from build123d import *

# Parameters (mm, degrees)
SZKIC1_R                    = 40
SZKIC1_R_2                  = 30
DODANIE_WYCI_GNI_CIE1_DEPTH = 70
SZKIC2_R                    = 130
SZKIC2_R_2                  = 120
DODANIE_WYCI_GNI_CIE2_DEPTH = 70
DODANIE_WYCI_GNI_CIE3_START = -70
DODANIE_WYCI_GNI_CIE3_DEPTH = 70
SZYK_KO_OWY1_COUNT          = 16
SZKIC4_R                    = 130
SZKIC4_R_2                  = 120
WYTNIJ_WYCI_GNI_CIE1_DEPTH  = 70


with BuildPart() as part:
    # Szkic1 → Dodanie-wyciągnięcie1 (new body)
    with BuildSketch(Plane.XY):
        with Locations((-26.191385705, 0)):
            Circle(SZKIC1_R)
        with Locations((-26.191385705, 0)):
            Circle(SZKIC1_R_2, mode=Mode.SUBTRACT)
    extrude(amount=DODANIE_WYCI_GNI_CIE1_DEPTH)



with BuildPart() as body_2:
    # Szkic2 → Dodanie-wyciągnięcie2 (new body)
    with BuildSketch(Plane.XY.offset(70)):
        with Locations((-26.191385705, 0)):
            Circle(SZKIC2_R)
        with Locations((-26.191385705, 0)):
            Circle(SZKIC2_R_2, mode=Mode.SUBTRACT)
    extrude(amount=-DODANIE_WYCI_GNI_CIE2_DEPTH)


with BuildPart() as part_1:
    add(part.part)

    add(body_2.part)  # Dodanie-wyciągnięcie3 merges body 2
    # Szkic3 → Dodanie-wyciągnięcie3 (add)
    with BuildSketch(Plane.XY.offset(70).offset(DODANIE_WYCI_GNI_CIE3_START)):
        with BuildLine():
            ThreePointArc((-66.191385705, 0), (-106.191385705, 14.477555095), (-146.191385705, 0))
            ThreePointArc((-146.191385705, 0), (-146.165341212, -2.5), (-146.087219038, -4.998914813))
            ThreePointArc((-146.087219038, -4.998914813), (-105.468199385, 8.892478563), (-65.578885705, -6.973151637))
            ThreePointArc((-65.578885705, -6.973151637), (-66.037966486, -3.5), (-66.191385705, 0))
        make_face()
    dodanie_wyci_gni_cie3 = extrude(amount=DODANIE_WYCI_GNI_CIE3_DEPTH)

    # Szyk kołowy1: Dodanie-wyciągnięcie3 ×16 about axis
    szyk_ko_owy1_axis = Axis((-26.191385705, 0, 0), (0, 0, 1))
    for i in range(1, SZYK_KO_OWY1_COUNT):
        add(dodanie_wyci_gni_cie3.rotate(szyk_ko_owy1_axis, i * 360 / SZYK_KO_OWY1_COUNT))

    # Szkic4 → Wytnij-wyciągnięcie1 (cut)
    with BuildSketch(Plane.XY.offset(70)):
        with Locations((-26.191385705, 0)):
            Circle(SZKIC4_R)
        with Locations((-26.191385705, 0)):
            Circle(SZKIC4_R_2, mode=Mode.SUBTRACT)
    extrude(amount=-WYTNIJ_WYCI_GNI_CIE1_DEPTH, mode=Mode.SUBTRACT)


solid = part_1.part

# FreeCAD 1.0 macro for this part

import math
import FreeCAD as App
import Part
import Sketcher
from FreeCAD import Vector
Q = App.Units.Quantity

doc = App.newDocument("Part")
body = doc.addObject("PartDesign::Body", "Body")

sketch1 = body.newObject("Sketcher::SketchObject", "Sketch")
sketch1.AttachmentSupport = (doc.getObject("XY_Plane"), [""])
sketch1.MapMode = "FlatFace"
sketch1.addGeometry(Part.Circle(Vector(-26, 0, 0), Vector(0, 0, 1), 40), False)
sketch1.addGeometry(Part.Circle(Vector(-26, 0, 0), Vector(0, 0, 1), 30), False)
sketch1.addConstraint(Sketcher.Constraint("Coincident", 1, 3, 0, 3))
sketch1.addConstraint(Sketcher.Constraint("PointOnObject", 0, 3, -1))
sketch1.addConstraint(Sketcher.Constraint("Diameter", 0, Q("80 mm")))
sketch1.addConstraint(Sketcher.Constraint("Diameter", 1, Q("60 mm")))
sketch1.addConstraint(Sketcher.Constraint("DistanceX", 0, 3, -1, 1, Q("26.191386 mm")))
pad1 = body.newObject("PartDesign::Pad", "Pad")
pad1.Profile = sketch1
pad1.Length = 70
body2 = doc.addObject("PartDesign::Body", "Body001")

sketch2 = body2.newObject("Sketcher::SketchObject", "Sketch001")
sketch2.AttachmentSupport = (doc.getObject("XY_Plane001"), [""])
sketch2.MapMode = "FlatFace"
sketch2.AttachmentOffset = App.Placement(Vector(0, 0, 70), App.Rotation())
sketch2.addGeometry(Part.Circle(Vector(-26, 0, 0), Vector(0, 0, 1), 130), False)
sketch2.addGeometry(Part.Circle(Vector(-26, 0, 0), Vector(0, 0, 1), 120), False)
sketch2.addConstraint(Sketcher.Constraint("Coincident", 1, 3, 0, 3))
sketch2.addConstraint(Sketcher.Constraint("PointOnObject", 0, 3, -1))
sketch2.addConstraint(Sketcher.Constraint("Diameter", 0, Q("260 mm")))
sketch2.addConstraint(Sketcher.Constraint("Diameter", 1, Q("240 mm")))
sketch2.addConstraint(Sketcher.Constraint("DistanceX", 0, 3, -1, 1, Q("26.191386 mm")))
pad2 = body2.newObject("PartDesign::Pad", "Pad001")
pad2.Profile = sketch2
pad2.Length = 70
pad2.Reversed = True
body.AllowCompound = True
doc.recompute()

boolean = body.newObject("PartDesign::Boolean", "Boolean")
boolean.Type = "Fuse"
boolean.addObjects([body2])

sketch3 = body.newObject("Sketcher::SketchObject", "Sketch002")
sketch3.AttachmentSupport = (doc.getObject("XY_Plane"), [""])
sketch3.MapMode = "FlatFace"
sketch3.addGeometry(Part.ArcOfCircle(Part.Circle(Vector(-106, -48, 0), Vector(0, 0, 1), 62), math.radians(50), math.radians(130)), False)
sketch3.addGeometry(Part.ArcOfCircle(Part.Circle(Vector(-26, 0, 0), Vector(0, 0, 1), 120), math.radians(180), math.radians(182.39)), False)
sketch3.addGeometry(Part.ArcOfCircle(Part.Circle(Vector(-107, -53, 0), Vector(0, 0, 1), 62), math.radians(48), math.radians(129)), False)
sketch3.addGeometry(Part.ArcOfCircle(Part.Circle(Vector(-26, 0, 0), Vector(0, 0, 1), 40), math.radians(-180), math.radians(-169.96)), False)
sketch3.addConstraint(Sketcher.Constraint("Coincident", 0, 2, 1, 1))
sketch3.addConstraint(Sketcher.Constraint("Coincident", 1, 2, 2, 2))
sketch3.addConstraint(Sketcher.Constraint("Coincident", 2, 1, 3, 2))
sketch3.addConstraint(Sketcher.Constraint("Coincident", 3, 1, 0, 1))
sketch3.addConstraint(Sketcher.Constraint("Coincident", 3, 3, 1, 3))
sketch3.addConstraint(Sketcher.Constraint("PointOnObject", 1, 3, -1))
sketch3.addConstraint(Sketcher.Constraint("PointOnObject", 0, 2, -1))
sketch3.addConstraint(Sketcher.Constraint("PointOnObject", 3, 1, -1))
sketch3.addConstraint(Sketcher.Constraint("Radius", 1, Q("119.999999 mm")))
sketch3.addConstraint(Sketcher.Constraint("Radius", 3, Q("40 mm")))
sketch3.addConstraint(Sketcher.Constraint("Radius", 0, Q("62.496726 mm")))
sketch3.addConstraint(Sketcher.Constraint("Radius", 2, Q("61.912164 mm")))
sketch3.addConstraint(Sketcher.Constraint("DistanceX", 2, 1, 1, 3, Q("39.387499 mm")))
sketch3.addConstraint(Sketcher.Constraint("DistanceY", 2, 3, -1, 1, Q("53.001079 mm")))
sketch3.addConstraint(Sketcher.Constraint("DistanceX", 1, 2, -1, 1, Q("146.087219 mm")))
pad3 = body.newObject("PartDesign::Pad", "Pad002")
pad3.Profile = sketch3
pad3.Length = 70
doc.recompute()

datumline = body.newObject("PartDesign::Line", "DatumLine")
datumline.Placement = App.Placement(Vector(-26.191386, 0, 0), App.Rotation(Vector(0, 0, 1), Vector(0, 0, 1)))
polarpattern = body.newObject("PartDesign::PolarPattern", "PolarPattern")
polarpattern.Originals = [pad3]
polarpattern.Axis = (datumline, [""])
polarpattern.Angle = 360
polarpattern.Occurrences = 16
body.Tip = polarpattern

sketch4 = body.newObject("Sketcher::SketchObject", "Sketch003")
sketch4.AttachmentSupport = (doc.getObject("XY_Plane"), [""])
sketch4.MapMode = "FlatFace"
sketch4.AttachmentOffset = App.Placement(Vector(0, 0, 70), App.Rotation())
sketch4.addGeometry(Part.Circle(Vector(-26, 0, 0), Vector(0, 0, 1), 130), False)
sketch4.addGeometry(Part.Circle(Vector(-26, 0, 0), Vector(0, 0, 1), 120), False)
sketch4.addConstraint(Sketcher.Constraint("Coincident", 1, 3, 0, 3))
sketch4.addConstraint(Sketcher.Constraint("PointOnObject", 0, 3, -1))
sketch4.addConstraint(Sketcher.Constraint("Diameter", 0, Q("260 mm")))
sketch4.addConstraint(Sketcher.Constraint("Diameter", 1, Q("240 mm")))
sketch4.addConstraint(Sketcher.Constraint("DistanceX", 0, 3, -1, 1, Q("26.191386 mm")))
pocket1 = body.newObject("PartDesign::Pocket", "Pocket")
pocket1.Profile = sketch4
pocket1.Length = 70

doc.recompute()
